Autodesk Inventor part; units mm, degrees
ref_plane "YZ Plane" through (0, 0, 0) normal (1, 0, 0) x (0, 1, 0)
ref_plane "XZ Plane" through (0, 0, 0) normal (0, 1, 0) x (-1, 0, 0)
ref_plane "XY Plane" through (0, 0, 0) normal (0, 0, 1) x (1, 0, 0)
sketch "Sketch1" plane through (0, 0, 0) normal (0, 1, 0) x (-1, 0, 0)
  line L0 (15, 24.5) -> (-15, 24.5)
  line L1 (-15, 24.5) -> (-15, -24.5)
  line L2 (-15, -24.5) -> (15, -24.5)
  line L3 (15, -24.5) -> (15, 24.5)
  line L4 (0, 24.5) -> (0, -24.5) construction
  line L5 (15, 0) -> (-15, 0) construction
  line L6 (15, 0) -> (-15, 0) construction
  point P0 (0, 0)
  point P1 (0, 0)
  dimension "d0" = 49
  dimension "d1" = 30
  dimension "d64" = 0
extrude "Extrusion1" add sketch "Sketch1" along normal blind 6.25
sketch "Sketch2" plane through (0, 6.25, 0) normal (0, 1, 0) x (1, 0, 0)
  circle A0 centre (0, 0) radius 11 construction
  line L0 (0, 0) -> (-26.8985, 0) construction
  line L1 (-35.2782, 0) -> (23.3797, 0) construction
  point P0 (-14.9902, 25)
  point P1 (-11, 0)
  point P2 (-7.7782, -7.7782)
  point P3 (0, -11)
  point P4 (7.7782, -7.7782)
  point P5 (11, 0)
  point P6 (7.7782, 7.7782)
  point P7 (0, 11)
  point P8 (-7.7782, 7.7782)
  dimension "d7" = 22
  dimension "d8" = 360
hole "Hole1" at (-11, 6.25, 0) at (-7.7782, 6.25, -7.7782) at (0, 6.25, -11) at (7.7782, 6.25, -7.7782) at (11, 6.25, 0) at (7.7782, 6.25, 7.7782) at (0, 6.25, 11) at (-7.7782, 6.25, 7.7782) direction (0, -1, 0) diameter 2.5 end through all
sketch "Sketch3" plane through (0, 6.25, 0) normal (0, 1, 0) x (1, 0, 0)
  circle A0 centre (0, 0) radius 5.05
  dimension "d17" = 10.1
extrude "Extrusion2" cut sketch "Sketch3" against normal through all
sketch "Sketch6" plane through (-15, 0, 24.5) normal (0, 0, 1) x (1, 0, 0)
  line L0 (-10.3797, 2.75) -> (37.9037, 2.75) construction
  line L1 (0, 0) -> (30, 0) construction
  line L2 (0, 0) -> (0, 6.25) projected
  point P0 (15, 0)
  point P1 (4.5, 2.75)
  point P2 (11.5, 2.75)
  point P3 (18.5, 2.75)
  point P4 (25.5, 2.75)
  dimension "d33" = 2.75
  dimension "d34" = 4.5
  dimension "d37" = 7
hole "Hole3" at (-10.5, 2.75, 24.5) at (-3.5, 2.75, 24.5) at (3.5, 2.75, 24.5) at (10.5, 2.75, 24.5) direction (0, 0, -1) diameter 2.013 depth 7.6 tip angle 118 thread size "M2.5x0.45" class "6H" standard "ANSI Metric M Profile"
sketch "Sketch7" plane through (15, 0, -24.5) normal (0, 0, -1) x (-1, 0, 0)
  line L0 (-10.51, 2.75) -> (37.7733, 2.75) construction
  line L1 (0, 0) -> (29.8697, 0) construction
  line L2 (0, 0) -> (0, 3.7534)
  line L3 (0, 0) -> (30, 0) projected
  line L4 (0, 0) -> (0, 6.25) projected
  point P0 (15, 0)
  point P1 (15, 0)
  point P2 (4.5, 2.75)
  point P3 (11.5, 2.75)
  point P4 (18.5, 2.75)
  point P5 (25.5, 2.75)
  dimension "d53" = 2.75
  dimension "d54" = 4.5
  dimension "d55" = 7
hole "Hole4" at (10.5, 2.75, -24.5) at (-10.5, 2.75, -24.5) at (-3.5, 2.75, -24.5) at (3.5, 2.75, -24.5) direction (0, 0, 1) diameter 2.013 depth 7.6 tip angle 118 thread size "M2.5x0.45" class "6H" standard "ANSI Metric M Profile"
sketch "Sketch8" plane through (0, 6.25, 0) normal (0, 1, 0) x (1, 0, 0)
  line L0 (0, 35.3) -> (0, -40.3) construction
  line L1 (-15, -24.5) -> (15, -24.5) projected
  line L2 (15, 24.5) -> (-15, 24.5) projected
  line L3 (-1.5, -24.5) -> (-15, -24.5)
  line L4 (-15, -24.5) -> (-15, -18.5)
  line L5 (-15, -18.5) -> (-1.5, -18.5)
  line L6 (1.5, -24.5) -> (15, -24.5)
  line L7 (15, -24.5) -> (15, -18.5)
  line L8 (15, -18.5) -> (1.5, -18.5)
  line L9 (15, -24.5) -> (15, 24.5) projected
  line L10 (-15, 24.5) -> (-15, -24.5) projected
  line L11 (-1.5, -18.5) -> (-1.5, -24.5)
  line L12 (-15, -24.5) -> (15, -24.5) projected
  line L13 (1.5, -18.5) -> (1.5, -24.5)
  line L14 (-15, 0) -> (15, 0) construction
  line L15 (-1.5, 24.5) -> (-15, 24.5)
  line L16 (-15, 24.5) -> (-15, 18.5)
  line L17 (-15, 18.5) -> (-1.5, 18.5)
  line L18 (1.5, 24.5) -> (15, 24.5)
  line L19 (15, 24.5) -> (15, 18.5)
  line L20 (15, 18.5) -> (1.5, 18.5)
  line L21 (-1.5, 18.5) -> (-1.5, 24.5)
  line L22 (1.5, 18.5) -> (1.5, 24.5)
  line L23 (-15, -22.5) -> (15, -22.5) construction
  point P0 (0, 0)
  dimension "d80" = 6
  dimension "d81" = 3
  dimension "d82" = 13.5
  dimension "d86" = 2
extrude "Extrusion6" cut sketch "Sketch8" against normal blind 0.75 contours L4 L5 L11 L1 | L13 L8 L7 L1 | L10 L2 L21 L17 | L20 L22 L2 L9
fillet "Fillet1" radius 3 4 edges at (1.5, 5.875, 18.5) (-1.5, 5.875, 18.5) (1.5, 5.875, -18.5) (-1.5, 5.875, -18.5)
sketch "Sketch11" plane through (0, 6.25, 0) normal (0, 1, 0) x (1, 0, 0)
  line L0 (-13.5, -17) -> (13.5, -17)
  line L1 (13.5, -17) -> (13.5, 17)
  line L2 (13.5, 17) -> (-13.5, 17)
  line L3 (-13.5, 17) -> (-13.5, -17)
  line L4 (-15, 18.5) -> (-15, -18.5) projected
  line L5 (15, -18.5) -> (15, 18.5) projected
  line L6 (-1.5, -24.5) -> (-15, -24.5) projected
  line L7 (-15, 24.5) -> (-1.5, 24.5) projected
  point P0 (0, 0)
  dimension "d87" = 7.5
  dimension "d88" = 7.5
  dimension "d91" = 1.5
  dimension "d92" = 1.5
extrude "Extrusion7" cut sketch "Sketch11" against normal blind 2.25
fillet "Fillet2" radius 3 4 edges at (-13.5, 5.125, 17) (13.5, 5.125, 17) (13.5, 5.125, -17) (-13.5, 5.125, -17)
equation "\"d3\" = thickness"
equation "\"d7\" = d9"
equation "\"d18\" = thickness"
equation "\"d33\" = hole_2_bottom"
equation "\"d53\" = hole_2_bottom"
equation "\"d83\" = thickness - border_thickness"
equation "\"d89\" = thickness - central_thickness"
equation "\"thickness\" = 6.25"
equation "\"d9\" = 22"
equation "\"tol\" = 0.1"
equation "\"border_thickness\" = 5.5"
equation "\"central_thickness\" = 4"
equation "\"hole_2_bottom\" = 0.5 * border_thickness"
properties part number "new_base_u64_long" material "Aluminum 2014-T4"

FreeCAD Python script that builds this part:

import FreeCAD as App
import Part
import Sketcher

V = App.Vector


def edges_at(feature, points):
    """Names of the edges that pass closest to the given points."""
    edges = feature.Shape.Edges
    near = lambda p: min(range(len(edges)), key=lambda i: edges[i].distToShape(Part.Vertex(*p))[0])
    return sorted({f"Edge{near(p) + 1}" for p in points})

doc = App.newDocument("Part")
body = doc.addObject("PartDesign::Body", "Body")

sketch1 = body.newObject("Sketcher::SketchObject", "Sketch")
sketch1.AttachmentSupport = (doc.getObject("XZ_Plane"), [""])
sketch1.MapMode = "FlatFace"
sketch1.addGeometry([
    Part.LineSegment(V(-15, -24.5, 0), V(-15, 24.5, 0)),
    Part.LineSegment(V(-15, 24.5, 0), V(15, 24.5, 0)),
    Part.LineSegment(V(15, 24.5, 0), V(15, -24.5, 0)),
    Part.LineSegment(V(15, -24.5, 0), V(-15, -24.5, 0)),
], False)
sketch1.addConstraint([
    Sketcher.Constraint("Coincident", 0, 2, 1, 1),
    Sketcher.Constraint("Coincident", 1, 2, 2, 1),
    Sketcher.Constraint("Coincident", 2, 2, 3, 1),
    Sketcher.Constraint("Coincident", 3, 2, 0, 1),
    Sketcher.Constraint("Vertical", 0),
    Sketcher.Constraint("Horizontal", 1),
    Sketcher.Constraint("Vertical", 2),
    Sketcher.Constraint("Horizontal", 3),
    Sketcher.Constraint("Symmetric", 0, 2, 2, 2, -1, 1),
    Sketcher.Constraint("DistanceX", 1, 1, 1, 2, 30.0),
    Sketcher.Constraint("DistanceY", 0, 1, 0, 2, 49.0),
])
pad1 = body.newObject("PartDesign::Pad", "Pad")
pad1.Profile = sketch1
pad1.Length = 6.25
pad1.Reversed = True

sketch2 = body.newObject("Sketcher::SketchObject", "Sketch001")
sketch2.AttachmentSupport = (doc.getObject("XZ_Plane"), [""])
sketch2.MapMode = "FlatFace"
sketch2.AttachmentOffset = App.Placement(V(0, 0, -6.25), App.Rotation())
sketch2.addGeometry([
    Part.Circle(V(-11, 0, 0), V(0, 0, 1), 1.25),
    Part.Circle(V(-7.7782, -7.7782, 0), V(0, 0, 1), 1.25),
    Part.Circle(V(0, -11, 0), V(0, 0, 1), 1.25),
    Part.Circle(V(7.7782, -7.7782, 0), V(0, 0, 1), 1.25),
    Part.Circle(V(11, 0, 0), V(0, 0, 1), 1.25),
    Part.Circle(V(7.7782, 7.7782, 0), V(0, 0, 1), 1.25),
    Part.Circle(V(0, 11, 0), V(0, 0, 1), 1.25),
    Part.Circle(V(-7.7782, 7.7782, 0), V(0, 0, 1), 1.25),
], False)
sketch2.addConstraint([
    Sketcher.Constraint("Equal", 0, 1),
    Sketcher.Constraint("Equal", 1, 2),
    Sketcher.Constraint("Equal", 2, 3),
    Sketcher.Constraint("Equal", 3, 4),
    Sketcher.Constraint("Equal", 4, 5),
    Sketcher.Constraint("Equal", 5, 6),
    Sketcher.Constraint("Equal", 6, 7),
    Sketcher.Constraint("Symmetric", 0, 3, 4, 3, -1, 1),
    Sketcher.Constraint("Symmetric", 1, 3, 5, 3, -1, 1),
    Sketcher.Constraint("Symmetric", 2, 3, 6, 3, -1, 1),
    Sketcher.Constraint("Symmetric", 3, 3, 7, 3, -1, 1),
    Sketcher.Constraint("Symmetric", 1, 3, 3, 3, -2),
    Sketcher.Constraint("PointOnObject", 0, 3, -1),
    Sketcher.Constraint("PointOnObject", 2, 3, -2),
    Sketcher.Constraint("Diameter", 0, 2.5),
    Sketcher.Constraint("DistanceX", 0, 3, -1, 1, 11.0),
    Sketcher.Constraint("DistanceY", 2, 3, -1, 1, 11.0),
    Sketcher.Constraint("DistanceX", 1, 3, -1, 1, 7.7782),
    Sketcher.Constraint("DistanceY", 1, 3, -1, 1, 7.7782),
])
doc.recompute()
hole = body.newObject("PartDesign::Hole", "Hole")
hole.Profile = sketch2
hole.ThreadType = "None"
hole.Diameter = 2.5
hole.DepthType = "ThroughAll"
hole.Reversed = True

sketch3 = body.newObject("Sketcher::SketchObject", "Sketch002")
sketch3.AttachmentSupport = (doc.getObject("XZ_Plane"), [""])
sketch3.MapMode = "FlatFace"
sketch3.AttachmentOffset = App.Placement(V(0, 0, -6.25), App.Rotation())
sketch3.addGeometry(Part.Circle(V(0, 0, 0), V(0, 0, 1), 5.05), False)
sketch3.addConstraint([
    Sketcher.Constraint("Coincident", 0, 3, -1, 1),
    Sketcher.Constraint("Diameter", 0, 10.1),
])
pocket1 = body.newObject("PartDesign::Pocket", "Pocket")
pocket1.Profile = sketch3
pocket1.Type = "ThroughAll"
pocket1.Reversed = True

sketch4 = body.newObject("Sketcher::SketchObject", "Sketch003")
sketch4.AttachmentSupport = (doc.getObject("XY_Plane"), [""])
sketch4.MapMode = "FlatFace"
sketch4.AttachmentOffset = App.Placement(V(0, 0, 24.5), App.Rotation())
sketch4.addGeometry([
    Part.Circle(V(-10.5, 2.75, 0), V(0, 0, 1), 1.0065),
    Part.Circle(V(-3.5, 2.75, 0), V(0, 0, 1), 1.0065),
    Part.Circle(V(3.5, 2.75, 0), V(0, 0, 1), 1.0065),
    Part.Circle(V(10.5, 2.75, 0), V(0, 0, 1), 1.0065),
], False)
sketch4.addConstraint([
    Sketcher.Constraint("Equal", 0, 1),
    Sketcher.Constraint("Equal", 1, 2),
    Sketcher.Constraint("Equal", 2, 3),
    Sketcher.Constraint("Symmetric", 1, 3, 2, 3, -2),
    Sketcher.Constraint("Symmetric", 0, 3, 3, 3, -2),
    Sketcher.Constraint("Horizontal", 0, 3, 1, 3),
    Sketcher.Constraint("Diameter", 0, 2.013),
    Sketcher.Constraint("DistanceX", 0, 3, 1, 3, 7.0),
    Sketcher.Constraint("DistanceX", 1, 3, 2, 3, 7.0),
    Sketcher.Constraint("DistanceY", -1, 1, 0, 3, 2.75),
])
doc.recompute()
hole2 = body.newObject("PartDesign::Hole", "Hole001")
hole2.Profile = sketch4
hole2.ThreadType = "None"
hole2.Diameter = 2.013
hole2.DepthType = "Dimension"
hole2.Depth = 7.6
hole2.DrillPoint = "Angled"
hole2.DrillPointAngle = 118

sketch5 = body.newObject("Sketcher::SketchObject", "Sketch004")
sketch5.AttachmentSupport = (doc.getObject("XY_Plane"), [""])
sketch5.MapMode = "FlatFace"
sketch5.AttachmentOffset = App.Placement(V(0, 0, -24.5), App.Rotation())
sketch5.addGeometry([
    Part.Circle(V(10.5, 2.75, 0), V(0, 0, 1), 1.0065),
    Part.Circle(V(-10.5, 2.75, 0), V(0, 0, 1), 1.0065),
    Part.Circle(V(-3.5, 2.75, 0), V(0, 0, 1), 1.0065),
    Part.Circle(V(3.5, 2.75, 0), V(0, 0, 1), 1.0065),
], False)
sketch5.addConstraint([
    Sketcher.Constraint("Equal", 0, 1),
    Sketcher.Constraint("Equal", 1, 2),
    Sketcher.Constraint("Equal", 2, 3),
    Sketcher.Constraint("Symmetric", 0, 3, 1, 3, -2),
    Sketcher.Constraint("Symmetric", 2, 3, 3, 3, -2),
    Sketcher.Constraint("Horizontal", 1, 3, 2, 3),
    Sketcher.Constraint("Diameter", 0, 2.013),
    Sketcher.Constraint("DistanceX", 1, 3, 0, 3, 21.0),
    Sketcher.Constraint("DistanceX", 1, 3, 2, 3, 7.0),
    Sketcher.Constraint("DistanceY", -1, 1, 0, 3, 2.75),
])
doc.recompute()
hole3 = body.newObject("PartDesign::Hole", "Hole002")
hole3.Profile = sketch5
hole3.ThreadType = "None"
hole3.Diameter = 2.013
hole3.DepthType = "Dimension"
hole3.Depth = 7.6
hole3.DrillPoint = "Angled"
hole3.DrillPointAngle = 118
hole3.Reversed = True

sketch6 = body.newObject("Sketcher::SketchObject", "Sketch005")
sketch6.AttachmentSupport = (doc.getObject("XZ_Plane"), [""])
sketch6.MapMode = "FlatFace"
sketch6.AttachmentOffset = App.Placement(V(0, 0, -6.25), App.Rotation())
sketch6.addGeometry([
    Part.LineSegment(V(-15, 18.5, 0), V(-15, 24.5, 0)),
    Part.LineSegment(V(-15, 24.5, 0), V(-1.5, 24.5, 0)),
    Part.LineSegment(V(-1.5, 24.5, 0), V(-1.5, 18.5, 0)),
    Part.LineSegment(V(-1.5, 18.5, 0), V(-15, 18.5, 0)),
    Part.LineSegment(V(1.5, 18.5, 0), V(1.5, 24.5, 0)),
    Part.LineSegment(V(1.5, 24.5, 0), V(15, 24.5, 0)),
    Part.LineSegment(V(15, 24.5, 0), V(15, 18.5, 0)),
    Part.LineSegment(V(15, 18.5, 0), V(1.5, 18.5, 0)),
    Part.LineSegment(V(-15, -24.5, 0), V(-15, -18.5, 0)),
    Part.LineSegment(V(-15, -18.5, 0), V(-1.5, -18.5, 0)),
    Part.LineSegment(V(-1.5, -18.5, 0), V(-1.5, -24.5, 0)),
    Part.LineSegment(V(-1.5, -24.5, 0), V(-15, -24.5, 0)),
    Part.LineSegment(V(1.5, -18.5, 0), V(15, -18.5, 0)),
    Part.LineSegment(V(15, -18.5, 0), V(15, -24.5, 0)),
    Part.LineSegment(V(15, -24.5, 0), V(1.5, -24.5, 0)),
    Part.LineSegment(V(1.5, -24.5, 0), V(1.5, -18.5, 0)),
], False)
sketch6.addConstraint([
    Sketcher.Constraint("Coincident", 0, 2, 1, 1),
    Sketcher.Constraint("Coincident", 1, 2, 2, 1),
    Sketcher.Constraint("Coincident", 2, 2, 3, 1),
    Sketcher.Constraint("Coincident", 3, 2, 0, 1),
    Sketcher.Constraint("Coincident", 4, 2, 5, 1),
    Sketcher.Constraint("Coincident", 5, 2, 6, 1),
    Sketcher.Constraint("Coincident", 6, 2, 7, 1),
    Sketcher.Constraint("Coincident", 7, 2, 4, 1),
    Sketcher.Constraint("Coincident", 8, 2, 9, 1),
    Sketcher.Constraint("Coincident", 9, 2, 10, 1),
    Sketcher.Constraint("Coincident", 10, 2, 11, 1),
    Sketcher.Constraint("Coincident", 11, 2, 8, 1),
    Sketcher.Constraint("Coincident", 12, 2, 13, 1),
    Sketcher.Constraint("Coincident", 13, 2, 14, 1),
    Sketcher.Constraint("Coincident", 14, 2, 15, 1),
    Sketcher.Constraint("Coincident", 15, 2, 12, 1),
    Sketcher.Constraint("Vertical", 0),
    Sketcher.Constraint("Horizontal", 1),
    Sketcher.Constraint("Vertical", 2),
    Sketcher.Constraint("Horizontal", 3),
    Sketcher.Constraint("Vertical", 4),
    Sketcher.Constraint("Horizontal", 5),
    Sketcher.Constraint("Vertical", 6),
    Sketcher.Constraint("Horizontal", 7),
    Sketcher.Constraint("Vertical", 8),
    Sketcher.Constraint("Horizontal", 9),
    Sketcher.Constraint("Vertical", 10),
    Sketcher.Constraint("Horizontal", 11),
    Sketcher.Constraint("Horizontal", 12),
    Sketcher.Constraint("Vertical", 13),
    Sketcher.Constraint("Horizontal", 14),
    Sketcher.Constraint("Vertical", 15),
    Sketcher.Constraint("Symmetric", 6, 2, 8, 2, -1, 1),
    Sketcher.Constraint("Symmetric", 4, 2, 10, 2, -1, 1),
    Sketcher.Constraint("Symmetric", 3, 2, 12, 2, -1, 1),
    Sketcher.Constraint("Symmetric", 1, 2, 14, 2, -1, 1),
    Sketcher.Constraint("Symmetric", 1, 2, 4, 2, -2),
    Sketcher.Constraint("Symmetric", 3, 2, 6, 2, -2),
    Sketcher.Constraint("DistanceY", 0, 1, 0, 2, 6.0),
    Sketcher.Constraint("DistanceX", 1, 1, 1, 2, 13.5),
    Sketcher.Constraint("DistanceX", 1, 2, 4, 2, 3.0),
    Sketcher.Constraint("DistanceY", 8, 2, 3, 2, 37.0),
])
pocket2 = body.newObject("PartDesign::Pocket", "Pocket001")
pocket2.Profile = sketch6
pocket2.Length = 0.75
pocket2.Reversed = True
doc.recompute()

fillet = body.newObject("PartDesign::Fillet", "Fillet")
fillet.Base = (pocket2, edges_at(pocket2, [
    (1.5, 5.875, 18.5),
    (-1.5, 5.875, 18.5),
    (1.5, 5.875, -18.5),
    (-1.5, 5.875, -18.5),
]))
fillet.Radius = 3

sketch7 = body.newObject("Sketcher::SketchObject", "Sketch006")
sketch7.AttachmentSupport = (doc.getObject("XZ_Plane"), [""])
sketch7.MapMode = "FlatFace"
sketch7.AttachmentOffset = App.Placement(V(0, 0, -6.25), App.Rotation())
sketch7.addGeometry([
    Part.LineSegment(V(-13.5, -17, 0), V(-13.5, 17, 0)),
    Part.LineSegment(V(-13.5, 17, 0), V(13.5, 17, 0)),
    Part.LineSegment(V(13.5, 17, 0), V(13.5, -17, 0)),
    Part.LineSegment(V(13.5, -17, 0), V(-13.5, -17, 0)),
], False)
sketch7.addConstraint([
    Sketcher.Constraint("Coincident", 0, 2, 1, 1),
    Sketcher.Constraint("Coincident", 1, 2, 2, 1),
    Sketcher.Constraint("Coincident", 2, 2, 3, 1),
    Sketcher.Constraint("Coincident", 3, 2, 0, 1),
    Sketcher.Constraint("Vertical", 0),
    Sketcher.Constraint("Horizontal", 1),
    Sketcher.Constraint("Vertical", 2),
    Sketcher.Constraint("Horizontal", 3),
    Sketcher.Constraint("Symmetric", 0, 2, 2, 2, -1, 1),
    Sketcher.Constraint("DistanceX", 1, 1, 1, 2, 27.0),
    Sketcher.Constraint("DistanceY", 0, 1, 0, 2, 34.0),
])
pocket3 = body.newObject("PartDesign::Pocket", "Pocket002")
pocket3.Profile = sketch7
pocket3.Length = 2.25
pocket3.Reversed = True
doc.recompute()

fillet2 = body.newObject("PartDesign::Fillet", "Fillet001")
fillet2.Base = (pocket3, edges_at(pocket3, [
    (-13.5, 5.125, 17),
    (13.5, 5.125, 17),
    (13.5, 5.125, -17),
    (-13.5, 5.125, -17),
]))
fillet2.Radius = 3

doc.recompute()
